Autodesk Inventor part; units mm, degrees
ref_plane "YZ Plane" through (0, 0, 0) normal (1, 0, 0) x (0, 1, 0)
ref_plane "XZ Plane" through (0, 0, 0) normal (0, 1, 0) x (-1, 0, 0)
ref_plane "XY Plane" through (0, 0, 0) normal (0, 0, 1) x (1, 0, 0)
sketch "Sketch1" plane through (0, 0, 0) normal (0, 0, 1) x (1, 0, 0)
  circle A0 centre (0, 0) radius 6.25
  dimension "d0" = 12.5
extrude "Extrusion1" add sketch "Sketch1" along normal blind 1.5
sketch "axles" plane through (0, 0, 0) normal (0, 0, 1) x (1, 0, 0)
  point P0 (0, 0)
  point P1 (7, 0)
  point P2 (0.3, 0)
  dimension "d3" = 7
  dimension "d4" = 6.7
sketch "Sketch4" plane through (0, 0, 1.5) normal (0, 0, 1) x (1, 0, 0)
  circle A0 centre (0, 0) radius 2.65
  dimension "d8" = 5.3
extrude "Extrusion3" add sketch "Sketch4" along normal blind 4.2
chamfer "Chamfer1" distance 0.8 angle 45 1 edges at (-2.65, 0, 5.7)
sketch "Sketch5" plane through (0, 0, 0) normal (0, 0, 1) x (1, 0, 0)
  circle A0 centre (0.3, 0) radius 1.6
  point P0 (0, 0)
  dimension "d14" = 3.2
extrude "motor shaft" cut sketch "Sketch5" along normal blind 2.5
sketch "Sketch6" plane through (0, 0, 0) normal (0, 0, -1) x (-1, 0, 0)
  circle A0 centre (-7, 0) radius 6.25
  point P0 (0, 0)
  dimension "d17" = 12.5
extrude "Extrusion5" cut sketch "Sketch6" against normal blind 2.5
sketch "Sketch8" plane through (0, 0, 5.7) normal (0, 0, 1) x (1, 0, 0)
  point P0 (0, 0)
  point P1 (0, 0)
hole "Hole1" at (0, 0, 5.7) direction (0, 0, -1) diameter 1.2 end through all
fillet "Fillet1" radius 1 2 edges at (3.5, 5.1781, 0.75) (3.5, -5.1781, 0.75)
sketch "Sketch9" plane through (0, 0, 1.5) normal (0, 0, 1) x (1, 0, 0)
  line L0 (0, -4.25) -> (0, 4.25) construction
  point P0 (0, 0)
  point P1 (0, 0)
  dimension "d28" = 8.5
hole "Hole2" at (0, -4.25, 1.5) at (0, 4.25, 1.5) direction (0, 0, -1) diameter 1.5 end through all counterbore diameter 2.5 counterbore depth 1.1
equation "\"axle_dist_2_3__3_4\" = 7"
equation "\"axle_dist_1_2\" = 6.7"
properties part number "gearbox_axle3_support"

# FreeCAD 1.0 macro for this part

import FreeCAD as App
import Part
import Sketcher
from FreeCAD import Vector
Q = App.Units.Quantity


def edges_at(feature, points):
    """Names of the edges that pass closest to the given points."""
    edges = feature.Shape.Edges
    near = lambda p: min(range(len(edges)), key=lambda i: edges[i].distToShape(Part.Vertex(*p))[0])
    return sorted({f"Edge{near(p) + 1}" for p in points})

doc = App.newDocument("Part")
body = doc.addObject("PartDesign::Body", "Body")

sketch1 = body.newObject("Sketcher::SketchObject", "Sketch")
sketch1.AttachmentSupport = (doc.getObject("XY_Plane"), [""])
sketch1.MapMode = "FlatFace"
sketch1.addGeometry(Part.Circle(Vector(0, 0, 0), Vector(0, 0, 1), 6.25), False)
sketch1.addConstraint(Sketcher.Constraint("Coincident", 0, 3, -1, 1))
sketch1.addConstraint(Sketcher.Constraint("Diameter", 0, Q("12.5 mm")))
pad1 = body.newObject("PartDesign::Pad", "Pad")
pad1.Profile = sketch1
pad1.Length = 1.5

sketch2 = body.newObject("Sketcher::SketchObject", "Sketch001")
sketch2.AttachmentSupport = (doc.getObject("XY_Plane"), [""])
sketch2.MapMode = "FlatFace"
sketch2.AttachmentOffset = App.Placement(Vector(0, 0, 1.5), App.Rotation())
sketch2.addGeometry(Part.Circle(Vector(0, 0, 0), Vector(0, 0, 1), 2.65), False)
sketch2.addConstraint(Sketcher.Constraint("Coincident", 0, 3, -1, 1))
sketch2.addConstraint(Sketcher.Constraint("Diameter", 0, Q("5.3 mm")))
pad2 = body.newObject("PartDesign::Pad", "Pad001")
pad2.Profile = sketch2
pad2.Length = 4.2
doc.recompute()

chamfer = body.newObject("PartDesign::Chamfer", "Chamfer")
chamfer.Base = (pad2, edges_at(pad2, [(-2.65, 0, 5.7)]))
chamfer.Size = 0.8

sketch3 = body.newObject("Sketcher::SketchObject", "Sketch002")
sketch3.AttachmentSupport = (doc.getObject("XY_Plane"), [""])
sketch3.MapMode = "FlatFace"
sketch3.addGeometry(Part.Circle(Vector(0.3, 0, 0), Vector(0, 0, 1), 1.6), False)
sketch3.addConstraint(Sketcher.Constraint("PointOnObject", 0, 3, -1))
sketch3.addConstraint(Sketcher.Constraint("Diameter", 0, Q("3.2 mm")))
sketch3.addConstraint(Sketcher.Constraint("DistanceX", -1, 1, 0, 3, Q("0.3 mm")))
pocket1 = body.newObject("PartDesign::Pocket", "Pocket")
pocket1.Profile = sketch3
pocket1.Length = 2.5
pocket1.Reversed = True

sketch4 = body.newObject("Sketcher::SketchObject", "Sketch003")
sketch4.AttachmentSupport = (doc.getObject("XY_Plane"), [""])
sketch4.MapMode = "FlatFace"
sketch4.addGeometry(Part.Circle(Vector(7, 0, 0), Vector(0, 0, 1), 6.25), False)
sketch4.addConstraint(Sketcher.Constraint("PointOnObject", 0, 3, -1))
sketch4.addConstraint(Sketcher.Constraint("Diameter", 0, Q("12.5 mm")))
sketch4.addConstraint(Sketcher.Constraint("DistanceX", -1, 1, 0, 3, Q("7 mm")))
pocket2 = body.newObject("PartDesign::Pocket", "Pocket001")
pocket2.Profile = sketch4
pocket2.Length = 2.5
pocket2.Reversed = True

sketch5 = body.newObject("Sketcher::SketchObject", "Sketch004")
sketch5.AttachmentSupport = (doc.getObject("XY_Plane"), [""])
sketch5.MapMode = "FlatFace"
sketch5.AttachmentOffset = App.Placement(Vector(0, 0, 5.7), App.Rotation())
sketch5.addGeometry(Part.Circle(Vector(0, 0, 0), Vector(0, 0, 1), 0.6), False)
sketch5.addConstraint(Sketcher.Constraint("Coincident", 0, 3, -1, 1))
sketch5.addConstraint(Sketcher.Constraint("Diameter", 0, Q("1.2 mm")))
doc.recompute()
hole = body.newObject("PartDesign::Hole", "Hole")
hole.Profile = sketch5
hole.ThreadType = "None"
hole.Diameter = 1.2
hole.DepthType = "ThroughAll"
doc.recompute()

fillet = body.newObject("PartDesign::Fillet", "Fillet")
fillet.Base = (hole, edges_at(hole, [(3.5, 5.178, 0.75), (3.5, -5.178, 0.75)]))
fillet.Radius = 1

sketch6 = body.newObject("Sketcher::SketchObject", "Sketch005")
sketch6.AttachmentSupport = (doc.getObject("XY_Plane"), [""])
sketch6.MapMode = "FlatFace"
sketch6.AttachmentOffset = App.Placement(Vector(0, 0, 1.5), App.Rotation())
sketch6.addGeometry(Part.Circle(Vector(0, -4.25, 0), Vector(0, 0, 1), 0.75), False)
sketch6.addGeometry(Part.Circle(Vector(0, 4.25, 0), Vector(0, 0, 1), 0.75), False)
sketch6.addConstraint(Sketcher.Constraint("Equal", 0, 1))
sketch6.addConstraint(Sketcher.Constraint("Symmetric", 0, 3, 1, 3, -1, 1))
sketch6.addConstraint(Sketcher.Constraint("PointOnObject", 0, 3, -2))
sketch6.addConstraint(Sketcher.Constraint("Diameter", 0, Q("1.5 mm")))
sketch6.addConstraint(Sketcher.Constraint("DistanceY", 0, 3, 1, 3, Q("8.5 mm")))
doc.recompute()
hole2 = body.newObject("PartDesign::Hole", "Hole001")
hole2.Profile = sketch6
hole2.ThreadType = "None"
hole2.Diameter = 1.5
hole2.DepthType = "ThroughAll"
hole2.HoleCutType = "Counterbore"
hole2.HoleCutDiameter = 2.5
hole2.HoleCutDepth = 1.1

doc.recompute()
